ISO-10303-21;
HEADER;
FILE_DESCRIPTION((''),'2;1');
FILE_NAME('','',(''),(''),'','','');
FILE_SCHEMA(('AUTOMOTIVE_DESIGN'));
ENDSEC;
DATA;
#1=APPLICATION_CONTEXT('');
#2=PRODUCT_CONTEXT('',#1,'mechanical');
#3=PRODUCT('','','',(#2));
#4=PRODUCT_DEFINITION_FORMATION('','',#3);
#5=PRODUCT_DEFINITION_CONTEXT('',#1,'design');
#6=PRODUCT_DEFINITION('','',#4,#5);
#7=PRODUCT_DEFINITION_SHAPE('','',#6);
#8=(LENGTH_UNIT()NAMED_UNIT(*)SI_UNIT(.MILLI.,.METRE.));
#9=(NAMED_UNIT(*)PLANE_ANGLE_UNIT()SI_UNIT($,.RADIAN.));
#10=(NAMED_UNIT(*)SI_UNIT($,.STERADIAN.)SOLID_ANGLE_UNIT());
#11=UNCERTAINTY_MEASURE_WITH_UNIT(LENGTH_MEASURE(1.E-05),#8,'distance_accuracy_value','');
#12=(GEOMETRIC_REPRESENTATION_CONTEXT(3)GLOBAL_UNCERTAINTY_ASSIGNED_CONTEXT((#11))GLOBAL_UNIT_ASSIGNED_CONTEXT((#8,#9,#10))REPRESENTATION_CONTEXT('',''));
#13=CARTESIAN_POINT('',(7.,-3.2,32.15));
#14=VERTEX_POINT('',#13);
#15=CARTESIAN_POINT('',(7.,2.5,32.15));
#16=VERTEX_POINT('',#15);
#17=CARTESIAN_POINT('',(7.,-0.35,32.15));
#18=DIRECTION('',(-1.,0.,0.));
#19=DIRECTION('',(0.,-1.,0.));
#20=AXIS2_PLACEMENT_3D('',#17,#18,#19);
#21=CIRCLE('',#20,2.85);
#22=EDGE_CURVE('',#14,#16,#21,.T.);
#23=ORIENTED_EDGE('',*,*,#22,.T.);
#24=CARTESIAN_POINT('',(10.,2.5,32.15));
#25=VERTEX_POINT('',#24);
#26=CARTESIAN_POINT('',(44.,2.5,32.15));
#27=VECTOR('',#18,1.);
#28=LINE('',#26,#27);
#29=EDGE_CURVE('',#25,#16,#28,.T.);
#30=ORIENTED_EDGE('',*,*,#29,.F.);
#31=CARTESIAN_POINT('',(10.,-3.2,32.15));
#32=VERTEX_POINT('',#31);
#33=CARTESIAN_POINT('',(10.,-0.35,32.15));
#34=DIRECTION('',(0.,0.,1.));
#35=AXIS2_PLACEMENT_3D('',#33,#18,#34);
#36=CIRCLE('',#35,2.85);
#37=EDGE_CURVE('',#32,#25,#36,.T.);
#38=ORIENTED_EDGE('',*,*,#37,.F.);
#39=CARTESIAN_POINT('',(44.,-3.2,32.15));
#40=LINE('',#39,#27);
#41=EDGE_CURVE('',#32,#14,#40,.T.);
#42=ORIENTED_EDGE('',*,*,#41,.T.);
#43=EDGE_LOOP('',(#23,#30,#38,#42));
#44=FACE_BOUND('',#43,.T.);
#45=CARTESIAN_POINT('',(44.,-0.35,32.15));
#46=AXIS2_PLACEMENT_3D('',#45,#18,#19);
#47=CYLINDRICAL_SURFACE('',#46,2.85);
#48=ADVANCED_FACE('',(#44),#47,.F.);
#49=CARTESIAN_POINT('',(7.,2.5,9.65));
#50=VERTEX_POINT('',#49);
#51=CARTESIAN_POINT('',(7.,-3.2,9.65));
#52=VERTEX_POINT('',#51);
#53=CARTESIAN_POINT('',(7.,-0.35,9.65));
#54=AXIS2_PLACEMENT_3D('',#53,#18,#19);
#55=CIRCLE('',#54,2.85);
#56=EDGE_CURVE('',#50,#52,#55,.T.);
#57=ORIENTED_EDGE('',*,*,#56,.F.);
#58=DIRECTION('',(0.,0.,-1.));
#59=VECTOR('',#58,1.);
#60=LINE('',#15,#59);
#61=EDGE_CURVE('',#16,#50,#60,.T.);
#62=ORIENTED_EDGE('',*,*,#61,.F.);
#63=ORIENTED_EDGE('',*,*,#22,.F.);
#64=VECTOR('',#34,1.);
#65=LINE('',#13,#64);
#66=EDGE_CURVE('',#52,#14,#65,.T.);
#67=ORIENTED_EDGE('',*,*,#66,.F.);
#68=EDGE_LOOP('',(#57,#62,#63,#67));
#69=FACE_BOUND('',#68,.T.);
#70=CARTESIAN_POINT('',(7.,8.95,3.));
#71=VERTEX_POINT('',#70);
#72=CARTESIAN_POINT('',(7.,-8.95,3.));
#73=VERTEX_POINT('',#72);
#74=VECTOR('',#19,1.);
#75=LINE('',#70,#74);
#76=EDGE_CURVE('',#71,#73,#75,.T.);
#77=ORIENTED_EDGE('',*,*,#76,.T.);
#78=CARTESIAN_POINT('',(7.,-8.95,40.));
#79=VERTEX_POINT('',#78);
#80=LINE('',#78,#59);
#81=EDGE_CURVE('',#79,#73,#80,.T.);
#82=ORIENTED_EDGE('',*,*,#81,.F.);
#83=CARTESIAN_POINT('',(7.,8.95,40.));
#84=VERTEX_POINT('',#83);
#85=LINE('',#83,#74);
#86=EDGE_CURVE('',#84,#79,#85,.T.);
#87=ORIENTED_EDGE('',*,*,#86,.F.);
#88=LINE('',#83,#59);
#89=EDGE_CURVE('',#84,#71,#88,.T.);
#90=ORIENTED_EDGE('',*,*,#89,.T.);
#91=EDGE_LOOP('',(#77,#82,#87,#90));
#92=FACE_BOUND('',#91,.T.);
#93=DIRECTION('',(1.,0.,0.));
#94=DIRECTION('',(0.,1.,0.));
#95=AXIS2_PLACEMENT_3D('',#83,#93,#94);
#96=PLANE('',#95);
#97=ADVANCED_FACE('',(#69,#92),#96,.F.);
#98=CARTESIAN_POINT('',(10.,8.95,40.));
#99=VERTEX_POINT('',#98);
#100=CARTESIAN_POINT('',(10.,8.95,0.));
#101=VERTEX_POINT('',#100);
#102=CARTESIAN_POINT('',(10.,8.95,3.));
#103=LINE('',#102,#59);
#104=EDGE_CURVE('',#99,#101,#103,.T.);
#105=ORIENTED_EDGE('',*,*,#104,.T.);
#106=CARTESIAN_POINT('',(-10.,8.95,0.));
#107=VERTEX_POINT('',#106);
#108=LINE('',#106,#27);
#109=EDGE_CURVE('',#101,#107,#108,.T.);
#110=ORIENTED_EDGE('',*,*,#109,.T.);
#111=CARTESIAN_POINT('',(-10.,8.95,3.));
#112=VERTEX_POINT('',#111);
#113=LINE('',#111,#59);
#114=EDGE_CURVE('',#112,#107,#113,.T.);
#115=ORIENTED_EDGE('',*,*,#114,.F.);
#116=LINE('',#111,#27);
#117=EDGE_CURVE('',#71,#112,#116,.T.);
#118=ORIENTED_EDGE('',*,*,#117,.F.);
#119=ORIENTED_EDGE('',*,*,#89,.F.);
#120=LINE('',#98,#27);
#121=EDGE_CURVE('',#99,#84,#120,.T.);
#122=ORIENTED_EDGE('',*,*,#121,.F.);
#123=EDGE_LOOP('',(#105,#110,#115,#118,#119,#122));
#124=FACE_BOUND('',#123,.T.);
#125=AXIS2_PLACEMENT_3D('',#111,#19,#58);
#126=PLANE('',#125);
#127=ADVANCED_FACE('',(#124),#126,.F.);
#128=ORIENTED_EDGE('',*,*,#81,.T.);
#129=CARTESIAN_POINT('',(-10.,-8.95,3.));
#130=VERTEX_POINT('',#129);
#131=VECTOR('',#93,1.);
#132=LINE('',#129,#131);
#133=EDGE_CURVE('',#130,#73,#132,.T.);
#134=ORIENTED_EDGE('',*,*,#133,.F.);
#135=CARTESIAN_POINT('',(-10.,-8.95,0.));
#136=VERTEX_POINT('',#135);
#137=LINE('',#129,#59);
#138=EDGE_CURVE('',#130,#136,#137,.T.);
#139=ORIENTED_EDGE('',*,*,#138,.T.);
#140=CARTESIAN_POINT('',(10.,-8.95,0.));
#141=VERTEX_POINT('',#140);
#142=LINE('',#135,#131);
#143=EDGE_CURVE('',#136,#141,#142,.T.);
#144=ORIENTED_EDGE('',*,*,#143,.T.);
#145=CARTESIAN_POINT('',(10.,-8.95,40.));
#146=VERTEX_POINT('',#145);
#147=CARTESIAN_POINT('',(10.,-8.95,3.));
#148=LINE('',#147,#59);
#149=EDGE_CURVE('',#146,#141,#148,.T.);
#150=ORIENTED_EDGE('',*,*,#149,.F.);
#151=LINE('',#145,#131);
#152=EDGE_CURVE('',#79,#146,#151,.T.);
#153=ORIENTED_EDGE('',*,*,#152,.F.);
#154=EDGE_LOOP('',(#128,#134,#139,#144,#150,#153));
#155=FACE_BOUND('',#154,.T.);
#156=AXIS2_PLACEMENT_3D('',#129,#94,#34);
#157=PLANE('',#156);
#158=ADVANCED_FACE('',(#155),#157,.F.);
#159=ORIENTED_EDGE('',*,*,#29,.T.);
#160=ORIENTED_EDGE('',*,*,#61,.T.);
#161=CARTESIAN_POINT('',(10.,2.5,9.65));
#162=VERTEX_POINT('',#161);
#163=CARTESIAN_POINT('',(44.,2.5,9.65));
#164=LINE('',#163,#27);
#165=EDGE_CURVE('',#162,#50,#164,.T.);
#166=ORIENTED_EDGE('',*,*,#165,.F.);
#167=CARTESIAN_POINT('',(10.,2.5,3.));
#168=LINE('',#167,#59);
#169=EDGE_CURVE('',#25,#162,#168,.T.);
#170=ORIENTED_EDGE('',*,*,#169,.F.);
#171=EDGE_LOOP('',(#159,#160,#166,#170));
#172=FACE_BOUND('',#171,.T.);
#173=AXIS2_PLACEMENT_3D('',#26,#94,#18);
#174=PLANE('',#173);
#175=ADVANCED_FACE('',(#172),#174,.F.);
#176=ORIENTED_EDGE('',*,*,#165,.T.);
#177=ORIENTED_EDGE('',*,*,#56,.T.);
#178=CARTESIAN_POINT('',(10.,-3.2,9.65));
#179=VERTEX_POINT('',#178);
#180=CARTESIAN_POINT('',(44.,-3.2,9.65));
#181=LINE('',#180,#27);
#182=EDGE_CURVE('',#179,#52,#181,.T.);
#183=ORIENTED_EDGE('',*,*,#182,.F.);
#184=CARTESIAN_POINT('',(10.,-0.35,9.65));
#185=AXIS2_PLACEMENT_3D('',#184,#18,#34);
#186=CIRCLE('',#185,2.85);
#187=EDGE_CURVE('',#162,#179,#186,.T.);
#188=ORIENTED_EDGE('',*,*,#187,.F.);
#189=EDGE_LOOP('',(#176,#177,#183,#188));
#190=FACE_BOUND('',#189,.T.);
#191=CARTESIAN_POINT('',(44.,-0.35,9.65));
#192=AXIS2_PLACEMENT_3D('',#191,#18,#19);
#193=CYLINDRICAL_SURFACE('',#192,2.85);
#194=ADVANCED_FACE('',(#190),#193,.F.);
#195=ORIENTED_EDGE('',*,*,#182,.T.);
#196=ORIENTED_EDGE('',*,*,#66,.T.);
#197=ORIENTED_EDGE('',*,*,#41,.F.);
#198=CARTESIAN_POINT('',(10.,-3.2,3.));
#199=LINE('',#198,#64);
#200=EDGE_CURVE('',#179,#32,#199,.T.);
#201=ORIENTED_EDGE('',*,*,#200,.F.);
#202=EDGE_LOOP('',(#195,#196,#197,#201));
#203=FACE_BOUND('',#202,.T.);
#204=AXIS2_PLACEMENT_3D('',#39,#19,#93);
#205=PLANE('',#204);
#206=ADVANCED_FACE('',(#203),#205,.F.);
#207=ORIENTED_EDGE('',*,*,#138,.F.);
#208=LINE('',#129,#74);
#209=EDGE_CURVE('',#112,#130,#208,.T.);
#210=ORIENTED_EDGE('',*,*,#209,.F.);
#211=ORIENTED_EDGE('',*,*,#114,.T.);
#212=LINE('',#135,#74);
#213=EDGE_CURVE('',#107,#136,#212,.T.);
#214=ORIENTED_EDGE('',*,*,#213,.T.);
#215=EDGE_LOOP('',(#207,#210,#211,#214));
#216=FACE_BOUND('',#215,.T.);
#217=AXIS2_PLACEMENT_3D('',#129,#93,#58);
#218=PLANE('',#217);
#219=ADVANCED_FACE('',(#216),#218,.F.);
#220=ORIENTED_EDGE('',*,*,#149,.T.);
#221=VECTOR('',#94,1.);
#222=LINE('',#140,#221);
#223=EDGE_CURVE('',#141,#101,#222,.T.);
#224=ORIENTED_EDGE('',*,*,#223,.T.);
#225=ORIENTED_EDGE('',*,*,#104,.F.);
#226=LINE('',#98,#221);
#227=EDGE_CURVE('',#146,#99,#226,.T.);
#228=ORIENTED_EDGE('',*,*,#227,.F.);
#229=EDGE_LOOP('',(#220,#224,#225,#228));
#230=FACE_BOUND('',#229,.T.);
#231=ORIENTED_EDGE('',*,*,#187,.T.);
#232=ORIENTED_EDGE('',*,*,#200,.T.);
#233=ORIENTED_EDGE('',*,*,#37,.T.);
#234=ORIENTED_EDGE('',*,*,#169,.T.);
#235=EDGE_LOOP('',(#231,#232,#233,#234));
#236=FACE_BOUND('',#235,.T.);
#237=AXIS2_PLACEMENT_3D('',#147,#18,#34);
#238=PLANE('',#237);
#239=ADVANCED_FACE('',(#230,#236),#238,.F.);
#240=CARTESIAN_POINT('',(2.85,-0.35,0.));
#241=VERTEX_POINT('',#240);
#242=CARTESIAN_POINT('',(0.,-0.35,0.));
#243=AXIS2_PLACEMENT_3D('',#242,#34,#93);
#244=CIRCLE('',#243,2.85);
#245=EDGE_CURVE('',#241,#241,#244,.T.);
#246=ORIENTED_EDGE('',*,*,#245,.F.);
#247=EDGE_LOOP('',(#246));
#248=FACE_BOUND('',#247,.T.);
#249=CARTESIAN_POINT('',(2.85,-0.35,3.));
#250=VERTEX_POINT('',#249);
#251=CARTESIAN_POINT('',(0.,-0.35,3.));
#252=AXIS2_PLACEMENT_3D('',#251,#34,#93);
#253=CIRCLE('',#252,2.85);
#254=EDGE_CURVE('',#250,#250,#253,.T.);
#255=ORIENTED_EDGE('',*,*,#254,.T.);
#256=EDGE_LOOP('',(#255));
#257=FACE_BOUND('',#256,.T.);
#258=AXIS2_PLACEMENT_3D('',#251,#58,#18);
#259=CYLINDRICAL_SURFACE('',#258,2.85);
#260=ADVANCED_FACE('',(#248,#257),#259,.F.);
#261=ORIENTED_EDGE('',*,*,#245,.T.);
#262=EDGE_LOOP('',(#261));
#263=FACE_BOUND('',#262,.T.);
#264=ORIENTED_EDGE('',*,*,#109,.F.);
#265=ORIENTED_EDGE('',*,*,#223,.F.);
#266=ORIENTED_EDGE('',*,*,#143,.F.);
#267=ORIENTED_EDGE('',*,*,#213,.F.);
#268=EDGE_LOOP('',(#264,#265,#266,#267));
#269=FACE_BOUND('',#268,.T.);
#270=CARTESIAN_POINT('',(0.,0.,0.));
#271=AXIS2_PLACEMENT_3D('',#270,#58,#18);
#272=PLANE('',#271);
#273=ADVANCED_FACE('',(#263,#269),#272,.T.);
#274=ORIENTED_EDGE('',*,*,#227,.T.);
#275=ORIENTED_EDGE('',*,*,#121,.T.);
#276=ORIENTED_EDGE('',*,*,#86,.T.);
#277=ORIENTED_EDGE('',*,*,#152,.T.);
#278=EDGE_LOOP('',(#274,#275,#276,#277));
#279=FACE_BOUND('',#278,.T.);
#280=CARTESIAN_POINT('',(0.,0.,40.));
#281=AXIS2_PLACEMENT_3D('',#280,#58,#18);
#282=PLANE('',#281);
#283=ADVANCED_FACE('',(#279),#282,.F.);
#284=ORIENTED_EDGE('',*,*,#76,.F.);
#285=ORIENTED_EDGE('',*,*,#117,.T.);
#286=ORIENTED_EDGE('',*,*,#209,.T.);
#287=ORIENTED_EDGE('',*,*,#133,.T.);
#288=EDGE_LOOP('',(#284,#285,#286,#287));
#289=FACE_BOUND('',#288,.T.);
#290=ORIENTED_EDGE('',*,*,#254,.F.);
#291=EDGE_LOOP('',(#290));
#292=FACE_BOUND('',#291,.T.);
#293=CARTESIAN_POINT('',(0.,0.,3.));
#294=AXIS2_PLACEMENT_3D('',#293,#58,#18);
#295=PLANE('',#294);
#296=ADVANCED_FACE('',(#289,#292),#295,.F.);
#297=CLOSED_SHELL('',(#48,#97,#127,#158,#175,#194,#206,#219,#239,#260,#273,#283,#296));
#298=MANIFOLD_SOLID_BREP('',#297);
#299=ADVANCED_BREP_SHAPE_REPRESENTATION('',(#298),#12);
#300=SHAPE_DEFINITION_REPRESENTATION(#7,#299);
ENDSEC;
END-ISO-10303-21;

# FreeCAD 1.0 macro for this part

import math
import FreeCAD as App
import Part
import Sketcher


def add_polygon(sketch, points):
    """Adds a closed chain of lines whose ends are joined by coincident constraints."""
    first, n = sketch.GeometryCount, len(points)
    for a, b in zip(points, points[1:] + points[:1]):
        sketch.addGeometry(Part.LineSegment(App.Vector(*a, 0), App.Vector(*b, 0)), False)
    for i in range(n):
        sketch.addConstraint(Sketcher.Constraint("Coincident", first + i, 2, first + (i + 1) % n, 1))

doc = App.newDocument("Part")
body = doc.addObject("PartDesign::Body", "Body")

sketch1 = body.newObject("Sketcher::SketchObject", "Sketch")
sketch1.AttachmentSupport = (doc.getObject("XY_Plane"), [""])
sketch1.MapMode = "FlatFace"
add_polygon(sketch1, [(-10, 8.9), (-10, -8.9), (10, -8.9), (10, 8.9)])
sketch1.addGeometry(Part.Circle(App.Vector(0, -0.3, 0), App.Vector(0, 0, 1), 2.9), False)
sketch1.addConstraint([
    Sketcher.Constraint("Vertical", 0),
    Sketcher.Constraint("Horizontal", 1),
    Sketcher.Constraint("Vertical", 2),
    Sketcher.Constraint("Horizontal", 3),
    Sketcher.Constraint("Symmetric", 0, 2, 2, 2, -1, 1),
    Sketcher.Constraint("PointOnObject", 4, 3, -2),
    Sketcher.Constraint("Diameter", 4, 5.7),
    Sketcher.Constraint("DistanceX", 1, 1, 1, 2, 20.0),
    Sketcher.Constraint("DistanceY", 0, 2, 0, 1, 17.9),
    Sketcher.Constraint("DistanceY", 0, 2, 4, 3, 8.6),
])
pad1 = body.newObject("PartDesign::Pad", "Pad")
pad1.Profile = sketch1
pad1.Length = 3

sketch2 = body.newObject("Sketcher::SketchObject", "Sketch001")
sketch2.AttachmentSupport = (doc.getObject("XY_Plane"), [""])
sketch2.MapMode = "FlatFace"
sketch2.AttachmentOffset = App.Placement(App.Vector(0, 0, 3), App.Rotation())
add_polygon(sketch2, [(7, 8.9), (7, -8.9), (10, -8.9), (10, 8.9)])
sketch2.addConstraint([
    Sketcher.Constraint("Vertical", 0),
    Sketcher.Constraint("Horizontal", 1),
    Sketcher.Constraint("Vertical", 2),
    Sketcher.Constraint("Horizontal", 3),
    Sketcher.Constraint("DistanceX", 1, 1, 1, 2, 3.0),
    Sketcher.Constraint("DistanceY", 0, 2, 0, 1, 17.9),
    Sketcher.Constraint("DistanceX", -1, 1, 0, 2, 7.0),
    Sketcher.Constraint("DistanceY", 0, 2, -1, 1, 8.95),
])
pad2 = body.newObject("PartDesign::Pad", "Pad001")
pad2.Profile = sketch2
pad2.Length = 37

sketch3 = body.newObject("Sketcher::SketchObject", "Sketch002")
sketch3.AttachmentSupport = (doc.getObject("YZ_Plane"), [""])
sketch3.MapMode = "FlatFace"
sketch3.AttachmentOffset = App.Placement(App.Vector(0, 0, 7), App.Rotation())
sketch3.addGeometry([
    Part.LineSegment(App.Vector(-3.2, 9.7, 0), App.Vector(-3.2, 32.1, 0)),
    Part.ArcOfCircle(Part.Circle(App.Vector(-0.3, 32.1, 0), App.Vector(0, 0, 1), 2.9), math.radians(0), math.radians(180)),
    Part.LineSegment(App.Vector(2.5, 32.1, 0), App.Vector(2.5, 9.7, 0)),
    Part.ArcOfCircle(Part.Circle(App.Vector(-0.3, 9.7, 0), App.Vector(0, 0, 1), 2.9), math.radians(180), math.radians(360)),
], False)
sketch3.addConstraint([
    Sketcher.Constraint("Tangent", 0, 2, 1, 2),
    Sketcher.Constraint("Tangent", 1, 1, 2, 1),
    Sketcher.Constraint("Tangent", 2, 2, 3, 2),
    Sketcher.Constraint("Tangent", 3, 1, 0, 1),
    Sketcher.Constraint("Vertical", 0),
    Sketcher.Constraint("Vertical", 2),
    Sketcher.Constraint("Radius", 1, 2.85),
    Sketcher.Constraint("DistanceY", 0, 1, 0, 2, 22.5),
    Sketcher.Constraint("DistanceX", 0, 2, -1, 1, 3.2),
    Sketcher.Constraint("DistanceY", -1, 1, 1, 3, 32.15),
])
pocket1 = body.newObject("PartDesign::Pocket", "Pocket")
pocket1.Profile = sketch3
pocket1.Length = 37
pocket1.Reversed = True

doc.recompute()
